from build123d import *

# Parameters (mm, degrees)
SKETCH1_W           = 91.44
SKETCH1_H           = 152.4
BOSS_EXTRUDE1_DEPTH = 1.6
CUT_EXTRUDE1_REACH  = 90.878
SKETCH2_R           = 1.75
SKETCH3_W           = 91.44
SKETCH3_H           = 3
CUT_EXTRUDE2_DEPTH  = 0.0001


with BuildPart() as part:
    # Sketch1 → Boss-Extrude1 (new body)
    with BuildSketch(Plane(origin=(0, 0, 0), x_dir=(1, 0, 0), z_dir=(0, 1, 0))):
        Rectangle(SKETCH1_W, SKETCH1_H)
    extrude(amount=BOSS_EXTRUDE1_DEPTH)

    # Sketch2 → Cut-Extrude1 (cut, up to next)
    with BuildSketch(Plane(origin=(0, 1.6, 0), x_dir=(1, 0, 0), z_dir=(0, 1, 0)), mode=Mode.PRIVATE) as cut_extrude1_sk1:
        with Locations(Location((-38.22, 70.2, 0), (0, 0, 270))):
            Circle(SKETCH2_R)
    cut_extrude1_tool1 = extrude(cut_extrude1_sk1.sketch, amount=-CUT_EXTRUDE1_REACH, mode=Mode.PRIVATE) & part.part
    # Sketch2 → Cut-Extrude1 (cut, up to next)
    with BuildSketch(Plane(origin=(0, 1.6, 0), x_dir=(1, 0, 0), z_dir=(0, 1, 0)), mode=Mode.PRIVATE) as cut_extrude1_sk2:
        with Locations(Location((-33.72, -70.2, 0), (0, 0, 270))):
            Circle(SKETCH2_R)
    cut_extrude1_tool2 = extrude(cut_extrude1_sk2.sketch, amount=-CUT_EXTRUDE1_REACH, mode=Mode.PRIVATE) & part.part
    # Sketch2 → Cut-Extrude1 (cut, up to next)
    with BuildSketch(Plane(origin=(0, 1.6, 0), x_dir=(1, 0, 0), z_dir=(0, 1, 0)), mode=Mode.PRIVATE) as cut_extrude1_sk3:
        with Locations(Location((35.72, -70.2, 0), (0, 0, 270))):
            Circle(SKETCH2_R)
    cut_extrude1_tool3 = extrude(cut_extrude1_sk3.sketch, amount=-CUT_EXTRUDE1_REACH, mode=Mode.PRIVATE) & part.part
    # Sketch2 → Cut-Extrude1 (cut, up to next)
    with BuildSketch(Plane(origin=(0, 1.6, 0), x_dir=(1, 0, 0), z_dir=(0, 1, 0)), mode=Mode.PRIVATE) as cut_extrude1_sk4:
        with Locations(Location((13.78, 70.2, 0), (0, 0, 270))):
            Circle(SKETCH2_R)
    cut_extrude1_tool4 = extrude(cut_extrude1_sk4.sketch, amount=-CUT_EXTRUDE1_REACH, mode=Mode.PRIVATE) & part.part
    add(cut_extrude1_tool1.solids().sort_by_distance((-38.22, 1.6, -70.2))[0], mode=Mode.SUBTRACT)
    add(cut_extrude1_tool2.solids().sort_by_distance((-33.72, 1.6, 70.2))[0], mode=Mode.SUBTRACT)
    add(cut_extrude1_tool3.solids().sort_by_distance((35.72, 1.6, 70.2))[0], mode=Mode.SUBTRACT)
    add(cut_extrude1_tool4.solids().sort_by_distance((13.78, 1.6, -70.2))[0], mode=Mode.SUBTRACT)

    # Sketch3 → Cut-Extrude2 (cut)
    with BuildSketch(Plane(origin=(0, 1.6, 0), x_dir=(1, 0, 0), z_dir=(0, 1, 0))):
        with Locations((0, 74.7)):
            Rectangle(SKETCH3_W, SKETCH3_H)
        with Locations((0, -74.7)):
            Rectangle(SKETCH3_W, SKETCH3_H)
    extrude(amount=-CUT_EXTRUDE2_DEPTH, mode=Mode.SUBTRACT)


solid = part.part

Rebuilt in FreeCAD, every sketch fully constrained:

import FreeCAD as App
import Part
import Sketcher
from FreeCAD import Vector
Q = App.Units.Quantity


def add_polygon(sketch, points):
    """Adds a closed chain of lines whose ends are joined by coincident constraints."""
    first, n = sketch.GeometryCount, len(points)
    for a, b in zip(points, points[1:] + points[:1]):
        sketch.addGeometry(Part.LineSegment(App.Vector(*a, 0), App.Vector(*b, 0)), False)
    for i in range(n):
        sketch.addConstraint(Sketcher.Constraint("Coincident", first + i, 2, first + (i + 1) % n, 1))

doc = App.newDocument("Part")
body = doc.addObject("PartDesign::Body", "Body")

# Sketch on XZ plane
sketch1 = body.newObject("Sketcher::SketchObject", "Sketch")
sketch1.AttachmentSupport = (doc.getObject("XZ_Plane"), [""])
sketch1.MapMode = "FlatFace"
add_polygon(sketch1, [(-46, -76), (-46, 76), (46, 76), (46, -76)])  # lines 0-3
sketch1.addConstraint([
    Sketcher.Constraint("Vertical", 0),
    Sketcher.Constraint("Horizontal", 1),
    Sketcher.Constraint("Vertical", 2),
    Sketcher.Constraint("Horizontal", 3),
    Sketcher.Constraint("Symmetric", 0, 2, 2, 2, -1, 1),
    Sketcher.Constraint("DistanceY", 0, 1, 0, 2, Q("152.4 mm")),
    Sketcher.Constraint("DistanceX", 1, 1, 1, 2, Q("91.44 mm")),
])
pad1 = body.newObject("PartDesign::Pad", "Pad")
pad1.Profile = sketch1
pad1.Length = 1.6
pad1.Reversed = True

# Sketch on XZ plane
sketch2 = body.newObject("Sketcher::SketchObject", "Sketch001")
sketch2.AttachmentSupport = (doc.getObject("XZ_Plane"), [""])
sketch2.MapMode = "FlatFace"
sketch2.AttachmentOffset = App.Placement(Vector(0, 0, -1.6), App.Rotation())
sketch2.addGeometry(Part.Circle(Vector(-38.2, -70.2, 0), Vector(0, 0, 1), 1.8), False)
sketch2.addConstraint([
    Sketcher.Constraint("Diameter", 0, Q("3.5 mm")),
    Sketcher.Constraint("DistanceY", 0, 3, -1, 1, Q("70.2 mm")),
    Sketcher.Constraint("DistanceX", 0, 3, -1, 1, Q("38.22 mm")),
])
pocket1 = body.newObject("PartDesign::Pocket", "Pocket")
pocket1.Profile = sketch2
pocket1.Type = "UpToFirst"
pocket1.Reversed = True

# Sketch on XZ plane
sketch3 = body.newObject("Sketcher::SketchObject", "Sketch002")
sketch3.AttachmentSupport = (doc.getObject("XZ_Plane"), [""])
sketch3.MapMode = "FlatFace"
sketch3.AttachmentOffset = App.Placement(Vector(0, 0, -1.6), App.Rotation())
sketch3.addGeometry(Part.Circle(Vector(-33.7, 70.2, 0), Vector(0, 0, 1), 1.8), False)
sketch3.addConstraint([
    Sketcher.Constraint("Diameter", 0, Q("3.5 mm")),
    Sketcher.Constraint("DistanceY", -1, 1, 0, 3, Q("70.2 mm")),
    Sketcher.Constraint("DistanceX", 0, 3, -1, 1, Q("33.72 mm")),
])
pocket2 = body.newObject("PartDesign::Pocket", "Pocket001")
pocket2.Profile = sketch3
pocket2.Type = "UpToFirst"
pocket2.Reversed = True

# Sketch on XZ plane
sketch4 = body.newObject("Sketcher::SketchObject", "Sketch003")
sketch4.AttachmentSupport = (doc.getObject("XZ_Plane"), [""])
sketch4.MapMode = "FlatFace"
sketch4.AttachmentOffset = App.Placement(Vector(0, 0, -1.6), App.Rotation())
sketch4.addGeometry(Part.Circle(Vector(35.7, 70.2, 0), Vector(0, 0, 1), 1.8), False)
sketch4.addConstraint([
    Sketcher.Constraint("Diameter", 0, Q("3.5 mm")),
    Sketcher.Constraint("DistanceY", -1, 1, 0, 3, Q("70.2 mm")),
    Sketcher.Constraint("DistanceX", -1, 1, 0, 3, Q("35.72 mm")),
])
pocket3 = body.newObject("PartDesign::Pocket", "Pocket002")
pocket3.Profile = sketch4
pocket3.Type = "UpToFirst"
pocket3.Reversed = True

# Sketch on XZ plane
sketch5 = body.newObject("Sketcher::SketchObject", "Sketch004")
sketch5.AttachmentSupport = (doc.getObject("XZ_Plane"), [""])
sketch5.MapMode = "FlatFace"
sketch5.AttachmentOffset = App.Placement(Vector(0, 0, -1.6), App.Rotation())
sketch5.addGeometry(Part.Circle(Vector(13.8, -70.2, 0), Vector(0, 0, 1), 1.8), False)
sketch5.addConstraint([
    Sketcher.Constraint("Diameter", 0, Q("3.5 mm")),
    Sketcher.Constraint("DistanceY", 0, 3, -1, 1, Q("70.2 mm")),
    Sketcher.Constraint("DistanceX", -1, 1, 0, 3, Q("13.78 mm")),
])
pocket4 = body.newObject("PartDesign::Pocket", "Pocket003")
pocket4.Profile = sketch5
pocket4.Type = "UpToFirst"
pocket4.Reversed = True

# Sketch on XZ plane
sketch6 = body.newObject("Sketcher::SketchObject", "Sketch005")
sketch6.AttachmentSupport = (doc.getObject("XZ_Plane"), [""])
sketch6.MapMode = "FlatFace"
sketch6.AttachmentOffset = App.Placement(Vector(0, 0, -1.6), App.Rotation())
add_polygon(sketch6, [(-45.7, -76.2), (-45.7, -73.2), (45.7, -73.2), (45.7, -76.2)])  # lines 0-3
add_polygon(sketch6, [(-45.7, 73.2), (-45.7, 76.2), (45.7, 76.2), (45.7, 73.2)])  # lines 4-7
sketch6.addConstraint([
    Sketcher.Constraint("Vertical", 0),
    Sketcher.Constraint("Horizontal", 1),
    Sketcher.Constraint("Vertical", 2),
    Sketcher.Constraint("Horizontal", 3),
    Sketcher.Constraint("Vertical", 4),
    Sketcher.Constraint("Horizontal", 5),
    Sketcher.Constraint("Vertical", 6),
    Sketcher.Constraint("Horizontal", 7),
    Sketcher.Constraint("Symmetric", 2, 2, 4, 2, -1, 1),
    Sketcher.Constraint("Symmetric", 0, 2, 6, 2, -1, 1),
    Sketcher.Constraint("Vertical", 3, 2, 4, 2),
    Sketcher.Constraint("DistanceY", 0, 1, 0, 2, Q("3 mm")),
    Sketcher.Constraint("DistanceX", 1, 1, 1, 2, Q("91.44 mm")),
    Sketcher.Constraint("DistanceY", 0, 2, -1, 1, Q("73.2 mm")),
])
pocket5 = body.newObject("PartDesign::Pocket", "Pocket004")
pocket5.Profile = sketch6
pocket5.Length = 0.0001
pocket5.Reversed = True

doc.recompute()
